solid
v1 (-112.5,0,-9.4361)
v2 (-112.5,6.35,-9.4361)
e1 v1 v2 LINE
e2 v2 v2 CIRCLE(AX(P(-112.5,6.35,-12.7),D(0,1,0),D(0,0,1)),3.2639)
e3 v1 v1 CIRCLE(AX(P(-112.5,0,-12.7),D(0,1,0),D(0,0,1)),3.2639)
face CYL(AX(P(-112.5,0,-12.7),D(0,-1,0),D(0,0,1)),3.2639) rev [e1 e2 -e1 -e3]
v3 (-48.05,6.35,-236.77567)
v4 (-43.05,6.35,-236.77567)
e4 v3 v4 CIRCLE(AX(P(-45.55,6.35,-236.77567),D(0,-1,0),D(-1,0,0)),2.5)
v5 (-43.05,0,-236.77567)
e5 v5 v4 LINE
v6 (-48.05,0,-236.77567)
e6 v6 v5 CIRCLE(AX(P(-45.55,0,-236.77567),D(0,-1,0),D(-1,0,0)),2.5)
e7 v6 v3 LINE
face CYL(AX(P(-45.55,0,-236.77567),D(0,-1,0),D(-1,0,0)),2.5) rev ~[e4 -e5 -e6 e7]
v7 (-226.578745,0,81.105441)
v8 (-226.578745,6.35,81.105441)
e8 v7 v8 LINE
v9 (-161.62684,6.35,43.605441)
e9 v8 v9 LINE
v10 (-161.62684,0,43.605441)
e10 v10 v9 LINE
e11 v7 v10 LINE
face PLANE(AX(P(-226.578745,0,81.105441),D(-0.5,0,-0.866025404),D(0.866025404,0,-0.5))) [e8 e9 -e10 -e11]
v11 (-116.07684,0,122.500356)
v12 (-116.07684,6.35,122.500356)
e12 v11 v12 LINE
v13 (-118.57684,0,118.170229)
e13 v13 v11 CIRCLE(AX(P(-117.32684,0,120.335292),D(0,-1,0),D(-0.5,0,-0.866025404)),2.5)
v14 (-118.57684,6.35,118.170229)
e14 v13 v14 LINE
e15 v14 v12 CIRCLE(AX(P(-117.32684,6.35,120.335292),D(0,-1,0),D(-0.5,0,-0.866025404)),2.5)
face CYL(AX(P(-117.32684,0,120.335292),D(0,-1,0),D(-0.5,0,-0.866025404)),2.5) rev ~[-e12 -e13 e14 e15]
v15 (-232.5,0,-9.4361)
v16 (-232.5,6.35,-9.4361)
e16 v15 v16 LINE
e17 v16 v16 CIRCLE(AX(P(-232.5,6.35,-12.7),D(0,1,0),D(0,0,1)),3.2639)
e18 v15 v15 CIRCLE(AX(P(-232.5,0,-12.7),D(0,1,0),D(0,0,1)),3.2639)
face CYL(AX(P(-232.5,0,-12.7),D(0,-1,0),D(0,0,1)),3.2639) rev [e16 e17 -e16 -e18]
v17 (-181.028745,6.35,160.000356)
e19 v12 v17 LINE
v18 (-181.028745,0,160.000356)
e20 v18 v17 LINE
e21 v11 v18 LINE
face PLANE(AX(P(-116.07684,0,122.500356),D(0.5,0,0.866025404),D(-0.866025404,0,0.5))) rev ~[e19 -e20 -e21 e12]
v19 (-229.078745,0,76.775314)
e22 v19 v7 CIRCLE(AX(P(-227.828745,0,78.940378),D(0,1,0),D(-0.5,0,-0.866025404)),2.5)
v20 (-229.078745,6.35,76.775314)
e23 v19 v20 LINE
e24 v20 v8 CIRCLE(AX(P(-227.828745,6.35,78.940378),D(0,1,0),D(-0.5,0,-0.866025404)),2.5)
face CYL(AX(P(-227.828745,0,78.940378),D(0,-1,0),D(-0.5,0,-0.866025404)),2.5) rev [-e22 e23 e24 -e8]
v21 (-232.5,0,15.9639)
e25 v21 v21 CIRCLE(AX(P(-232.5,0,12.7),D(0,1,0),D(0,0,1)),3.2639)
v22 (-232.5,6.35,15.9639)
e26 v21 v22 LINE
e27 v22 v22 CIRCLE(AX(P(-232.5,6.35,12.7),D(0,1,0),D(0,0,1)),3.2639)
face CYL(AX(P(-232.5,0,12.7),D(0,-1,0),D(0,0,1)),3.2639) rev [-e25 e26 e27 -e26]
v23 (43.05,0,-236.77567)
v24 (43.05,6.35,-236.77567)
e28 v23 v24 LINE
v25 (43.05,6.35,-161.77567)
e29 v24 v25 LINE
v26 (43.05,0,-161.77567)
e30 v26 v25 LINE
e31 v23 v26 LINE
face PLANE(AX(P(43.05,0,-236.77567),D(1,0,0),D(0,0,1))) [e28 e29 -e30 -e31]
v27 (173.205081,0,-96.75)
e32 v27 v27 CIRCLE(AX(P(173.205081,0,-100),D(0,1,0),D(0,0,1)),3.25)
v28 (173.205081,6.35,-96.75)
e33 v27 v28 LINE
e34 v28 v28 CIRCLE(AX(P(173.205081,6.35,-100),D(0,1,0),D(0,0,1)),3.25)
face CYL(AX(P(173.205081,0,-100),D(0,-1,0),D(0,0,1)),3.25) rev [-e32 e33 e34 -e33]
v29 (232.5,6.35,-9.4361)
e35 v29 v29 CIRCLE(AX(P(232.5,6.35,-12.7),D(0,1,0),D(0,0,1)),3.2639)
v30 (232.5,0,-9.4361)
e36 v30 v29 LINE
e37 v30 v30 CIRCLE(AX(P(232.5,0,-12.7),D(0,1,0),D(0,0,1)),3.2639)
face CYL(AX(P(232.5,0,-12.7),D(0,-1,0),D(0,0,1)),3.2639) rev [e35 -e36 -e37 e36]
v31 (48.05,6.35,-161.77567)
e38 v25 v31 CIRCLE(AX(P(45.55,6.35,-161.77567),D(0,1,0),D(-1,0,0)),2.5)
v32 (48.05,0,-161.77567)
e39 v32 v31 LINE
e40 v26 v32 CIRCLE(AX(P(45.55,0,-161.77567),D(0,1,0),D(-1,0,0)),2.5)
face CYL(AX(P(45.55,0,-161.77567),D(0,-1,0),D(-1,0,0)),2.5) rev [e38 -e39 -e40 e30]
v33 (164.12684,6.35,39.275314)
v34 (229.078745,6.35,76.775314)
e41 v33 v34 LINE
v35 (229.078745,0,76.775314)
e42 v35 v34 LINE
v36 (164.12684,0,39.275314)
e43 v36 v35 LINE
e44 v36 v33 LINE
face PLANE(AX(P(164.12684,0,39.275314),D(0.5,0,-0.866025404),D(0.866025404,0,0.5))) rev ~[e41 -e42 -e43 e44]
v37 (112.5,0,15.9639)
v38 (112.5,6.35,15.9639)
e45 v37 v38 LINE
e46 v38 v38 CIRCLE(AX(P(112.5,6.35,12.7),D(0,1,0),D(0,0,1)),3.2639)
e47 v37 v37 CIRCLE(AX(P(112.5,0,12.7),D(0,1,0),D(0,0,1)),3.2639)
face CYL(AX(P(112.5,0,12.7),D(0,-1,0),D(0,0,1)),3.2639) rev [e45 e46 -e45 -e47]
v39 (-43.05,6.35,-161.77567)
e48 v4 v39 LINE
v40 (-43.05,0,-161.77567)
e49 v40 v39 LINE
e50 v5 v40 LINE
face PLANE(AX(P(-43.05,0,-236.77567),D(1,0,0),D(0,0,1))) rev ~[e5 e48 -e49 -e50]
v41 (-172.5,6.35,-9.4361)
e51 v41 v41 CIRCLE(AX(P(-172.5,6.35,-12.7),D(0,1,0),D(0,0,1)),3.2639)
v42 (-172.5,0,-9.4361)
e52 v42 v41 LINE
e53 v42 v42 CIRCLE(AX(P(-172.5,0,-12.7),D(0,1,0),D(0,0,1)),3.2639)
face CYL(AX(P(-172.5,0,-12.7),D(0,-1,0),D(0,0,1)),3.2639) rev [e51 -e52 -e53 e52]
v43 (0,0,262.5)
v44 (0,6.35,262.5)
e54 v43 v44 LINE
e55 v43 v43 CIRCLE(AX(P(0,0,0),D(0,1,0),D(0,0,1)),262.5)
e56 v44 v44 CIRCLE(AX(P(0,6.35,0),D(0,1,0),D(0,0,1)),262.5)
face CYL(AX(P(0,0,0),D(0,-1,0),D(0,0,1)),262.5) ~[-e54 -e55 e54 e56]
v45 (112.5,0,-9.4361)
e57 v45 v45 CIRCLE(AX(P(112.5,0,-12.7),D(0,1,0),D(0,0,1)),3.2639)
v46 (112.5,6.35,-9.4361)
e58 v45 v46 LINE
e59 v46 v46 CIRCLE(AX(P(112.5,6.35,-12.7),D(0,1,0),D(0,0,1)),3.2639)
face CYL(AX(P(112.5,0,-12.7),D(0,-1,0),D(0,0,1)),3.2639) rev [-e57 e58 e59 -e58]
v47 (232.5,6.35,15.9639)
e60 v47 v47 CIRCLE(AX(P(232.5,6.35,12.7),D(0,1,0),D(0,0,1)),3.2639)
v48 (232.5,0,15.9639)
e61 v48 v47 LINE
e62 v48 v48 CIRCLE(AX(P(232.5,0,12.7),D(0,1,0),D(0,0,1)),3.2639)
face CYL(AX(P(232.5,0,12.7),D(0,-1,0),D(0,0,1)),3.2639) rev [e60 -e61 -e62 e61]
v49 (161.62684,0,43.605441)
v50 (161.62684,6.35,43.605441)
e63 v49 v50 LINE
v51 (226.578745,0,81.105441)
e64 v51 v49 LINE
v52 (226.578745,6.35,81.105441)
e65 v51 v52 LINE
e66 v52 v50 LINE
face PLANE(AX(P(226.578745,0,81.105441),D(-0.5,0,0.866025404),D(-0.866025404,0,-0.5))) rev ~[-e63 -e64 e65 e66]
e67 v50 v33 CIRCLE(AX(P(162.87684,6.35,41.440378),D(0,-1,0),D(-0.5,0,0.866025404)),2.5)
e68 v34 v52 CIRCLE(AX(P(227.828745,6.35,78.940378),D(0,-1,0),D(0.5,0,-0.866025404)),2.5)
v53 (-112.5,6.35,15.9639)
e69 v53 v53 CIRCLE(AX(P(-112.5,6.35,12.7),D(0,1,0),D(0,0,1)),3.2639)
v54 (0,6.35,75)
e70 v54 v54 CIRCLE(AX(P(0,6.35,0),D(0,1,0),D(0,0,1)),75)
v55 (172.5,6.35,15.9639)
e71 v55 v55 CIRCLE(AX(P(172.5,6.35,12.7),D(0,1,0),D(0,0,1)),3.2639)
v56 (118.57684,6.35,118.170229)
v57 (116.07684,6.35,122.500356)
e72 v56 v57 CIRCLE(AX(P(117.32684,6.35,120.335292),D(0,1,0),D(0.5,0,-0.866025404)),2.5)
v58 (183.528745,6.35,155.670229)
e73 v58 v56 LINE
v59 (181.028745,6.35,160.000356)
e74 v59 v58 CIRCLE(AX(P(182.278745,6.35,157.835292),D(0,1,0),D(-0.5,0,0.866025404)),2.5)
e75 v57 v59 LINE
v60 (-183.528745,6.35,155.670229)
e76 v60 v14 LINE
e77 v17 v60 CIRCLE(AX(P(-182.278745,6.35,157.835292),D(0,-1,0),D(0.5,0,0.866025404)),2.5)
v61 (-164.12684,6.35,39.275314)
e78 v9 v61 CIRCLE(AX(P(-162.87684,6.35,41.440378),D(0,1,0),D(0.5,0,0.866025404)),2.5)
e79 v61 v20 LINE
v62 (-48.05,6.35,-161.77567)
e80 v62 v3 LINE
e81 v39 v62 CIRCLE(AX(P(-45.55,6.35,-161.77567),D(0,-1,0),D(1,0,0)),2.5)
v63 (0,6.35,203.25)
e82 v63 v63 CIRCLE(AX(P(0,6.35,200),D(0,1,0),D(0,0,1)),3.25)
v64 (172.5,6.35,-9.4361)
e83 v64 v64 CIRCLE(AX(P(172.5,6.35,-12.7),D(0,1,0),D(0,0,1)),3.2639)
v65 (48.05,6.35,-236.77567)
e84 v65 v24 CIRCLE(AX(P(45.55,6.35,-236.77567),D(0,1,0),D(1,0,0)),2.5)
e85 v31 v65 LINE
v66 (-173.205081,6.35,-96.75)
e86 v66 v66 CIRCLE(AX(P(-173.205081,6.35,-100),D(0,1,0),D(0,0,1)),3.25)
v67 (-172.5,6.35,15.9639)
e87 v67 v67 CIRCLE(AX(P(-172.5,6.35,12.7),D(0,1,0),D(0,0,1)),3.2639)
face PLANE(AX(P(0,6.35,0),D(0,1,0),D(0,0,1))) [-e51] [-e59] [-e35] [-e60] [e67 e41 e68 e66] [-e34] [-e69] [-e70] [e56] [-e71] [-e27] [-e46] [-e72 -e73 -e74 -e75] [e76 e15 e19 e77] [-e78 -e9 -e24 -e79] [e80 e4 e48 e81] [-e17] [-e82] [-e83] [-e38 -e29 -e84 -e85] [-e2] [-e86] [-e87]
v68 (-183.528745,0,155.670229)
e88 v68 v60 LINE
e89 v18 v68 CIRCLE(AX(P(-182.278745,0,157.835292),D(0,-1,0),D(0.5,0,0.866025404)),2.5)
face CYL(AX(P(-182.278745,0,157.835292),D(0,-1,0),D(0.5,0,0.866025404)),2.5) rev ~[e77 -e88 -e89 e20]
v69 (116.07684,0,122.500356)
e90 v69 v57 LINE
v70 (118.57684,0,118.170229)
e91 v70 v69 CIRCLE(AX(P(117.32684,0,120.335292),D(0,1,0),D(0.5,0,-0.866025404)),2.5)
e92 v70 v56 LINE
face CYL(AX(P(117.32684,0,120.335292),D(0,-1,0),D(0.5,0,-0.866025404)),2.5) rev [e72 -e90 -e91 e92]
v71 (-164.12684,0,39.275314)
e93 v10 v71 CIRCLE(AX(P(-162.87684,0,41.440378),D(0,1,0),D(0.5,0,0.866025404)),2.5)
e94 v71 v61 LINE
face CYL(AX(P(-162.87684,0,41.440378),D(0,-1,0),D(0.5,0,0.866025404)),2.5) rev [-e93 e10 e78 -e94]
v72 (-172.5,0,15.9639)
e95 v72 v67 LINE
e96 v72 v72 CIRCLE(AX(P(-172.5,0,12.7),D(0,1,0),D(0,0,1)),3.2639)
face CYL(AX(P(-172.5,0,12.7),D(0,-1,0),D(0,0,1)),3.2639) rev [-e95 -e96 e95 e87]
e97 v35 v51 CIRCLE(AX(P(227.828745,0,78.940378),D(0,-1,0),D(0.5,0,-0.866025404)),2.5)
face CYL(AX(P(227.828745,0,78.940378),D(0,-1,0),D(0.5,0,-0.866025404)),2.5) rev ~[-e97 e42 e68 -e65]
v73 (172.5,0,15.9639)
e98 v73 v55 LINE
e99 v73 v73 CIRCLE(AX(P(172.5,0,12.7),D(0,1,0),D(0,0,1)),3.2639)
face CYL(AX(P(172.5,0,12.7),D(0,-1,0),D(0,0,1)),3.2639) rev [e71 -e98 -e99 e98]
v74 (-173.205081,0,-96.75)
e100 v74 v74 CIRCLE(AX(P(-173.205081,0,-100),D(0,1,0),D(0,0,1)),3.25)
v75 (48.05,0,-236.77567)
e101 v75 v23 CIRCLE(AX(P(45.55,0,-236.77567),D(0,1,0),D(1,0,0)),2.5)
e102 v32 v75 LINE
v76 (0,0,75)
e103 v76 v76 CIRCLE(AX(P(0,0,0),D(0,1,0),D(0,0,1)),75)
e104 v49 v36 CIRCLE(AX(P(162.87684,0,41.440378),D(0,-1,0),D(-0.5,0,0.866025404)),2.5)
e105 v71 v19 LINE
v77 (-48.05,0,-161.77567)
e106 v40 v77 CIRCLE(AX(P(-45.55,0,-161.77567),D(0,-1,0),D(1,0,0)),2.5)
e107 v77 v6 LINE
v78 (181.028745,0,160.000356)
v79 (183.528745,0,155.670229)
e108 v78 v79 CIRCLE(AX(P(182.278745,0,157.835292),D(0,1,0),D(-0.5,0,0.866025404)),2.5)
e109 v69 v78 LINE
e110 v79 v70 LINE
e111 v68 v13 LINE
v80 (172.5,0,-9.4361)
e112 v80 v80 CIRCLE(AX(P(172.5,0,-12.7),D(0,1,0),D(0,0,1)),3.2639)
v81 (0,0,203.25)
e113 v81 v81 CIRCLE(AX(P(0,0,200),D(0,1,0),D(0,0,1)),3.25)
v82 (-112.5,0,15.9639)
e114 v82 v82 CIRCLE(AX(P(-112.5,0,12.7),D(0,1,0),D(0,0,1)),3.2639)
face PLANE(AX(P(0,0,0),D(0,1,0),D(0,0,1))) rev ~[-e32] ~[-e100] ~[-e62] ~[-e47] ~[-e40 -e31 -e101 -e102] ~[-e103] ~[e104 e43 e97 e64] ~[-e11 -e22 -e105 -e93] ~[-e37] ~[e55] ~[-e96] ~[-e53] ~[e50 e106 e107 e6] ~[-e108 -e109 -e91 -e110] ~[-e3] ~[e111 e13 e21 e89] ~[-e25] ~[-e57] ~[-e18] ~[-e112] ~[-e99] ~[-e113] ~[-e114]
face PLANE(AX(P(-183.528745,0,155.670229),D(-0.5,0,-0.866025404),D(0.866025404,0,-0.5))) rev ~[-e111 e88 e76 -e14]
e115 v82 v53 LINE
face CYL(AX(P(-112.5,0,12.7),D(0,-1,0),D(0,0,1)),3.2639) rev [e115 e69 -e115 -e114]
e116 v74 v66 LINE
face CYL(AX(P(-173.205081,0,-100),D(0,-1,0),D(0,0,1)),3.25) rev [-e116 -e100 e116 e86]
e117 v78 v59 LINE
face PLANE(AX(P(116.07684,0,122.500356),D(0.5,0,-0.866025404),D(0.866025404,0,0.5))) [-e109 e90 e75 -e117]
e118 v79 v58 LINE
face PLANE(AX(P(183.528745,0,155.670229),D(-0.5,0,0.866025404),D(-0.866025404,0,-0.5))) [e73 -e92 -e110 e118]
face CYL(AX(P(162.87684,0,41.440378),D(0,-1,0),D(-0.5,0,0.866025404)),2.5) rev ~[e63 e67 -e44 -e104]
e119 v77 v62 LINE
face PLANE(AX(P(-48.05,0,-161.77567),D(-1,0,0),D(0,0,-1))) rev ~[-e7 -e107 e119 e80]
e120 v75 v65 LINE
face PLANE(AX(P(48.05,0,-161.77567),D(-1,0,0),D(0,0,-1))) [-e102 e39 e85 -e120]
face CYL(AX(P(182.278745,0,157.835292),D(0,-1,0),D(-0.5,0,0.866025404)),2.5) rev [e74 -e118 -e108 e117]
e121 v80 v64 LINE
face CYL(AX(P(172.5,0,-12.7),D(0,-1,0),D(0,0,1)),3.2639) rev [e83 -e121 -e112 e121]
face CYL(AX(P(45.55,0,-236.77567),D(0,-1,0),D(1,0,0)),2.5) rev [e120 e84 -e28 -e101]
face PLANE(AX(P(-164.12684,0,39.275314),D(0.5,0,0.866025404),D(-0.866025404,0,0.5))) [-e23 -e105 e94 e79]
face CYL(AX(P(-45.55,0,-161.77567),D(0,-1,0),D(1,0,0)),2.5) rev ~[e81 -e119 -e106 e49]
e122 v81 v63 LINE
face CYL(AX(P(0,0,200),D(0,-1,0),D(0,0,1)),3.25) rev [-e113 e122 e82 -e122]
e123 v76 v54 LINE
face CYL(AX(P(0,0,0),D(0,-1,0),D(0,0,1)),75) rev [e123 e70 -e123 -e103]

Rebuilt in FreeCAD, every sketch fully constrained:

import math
import FreeCAD as App
import Part
import Sketcher

V = App.Vector
Q = App.Units.Quantity

doc = App.newDocument("Part")
body = doc.addObject("PartDesign::Body", "Body")

# Sketch on XZ plane
sketch1 = body.newObject("Sketcher::SketchObject", "Sketch")
sketch1.AttachmentSupport = (doc.getObject("XZ_Plane"), [""])
sketch1.MapMode = "FlatFace"
sketch1.addGeometry([
    Part.Circle(V(0, 0, 0), V(0, 0, 1), 262.5),  # 0
    Part.Circle(V(-173.2, -100, 0), V(0, 0, 1), 3.2),  # 1
    Part.ArcOfCircle(Part.Circle(V(-45.5, -236.8, 0), V(0, 0, 1), 2.5), math.radians(180), math.radians(360)),  # 2
    Part.LineSegment(V(-43, -236.8, 0), V(-43, -161.8, 0)),  # 3
    Part.ArcOfCircle(Part.Circle(V(-45.5, -161.8, 0), V(0, 0, 1), 2.5), math.radians(0), math.radians(180)),  # 4
    Part.LineSegment(V(-48, -161.8, 0), V(-48, -236.8, 0)),  # 5
    Part.Circle(V(-232.5, -12.7, 0), V(0, 0, 1), 3.3),  # 6
    Part.Circle(V(-232.5, 12.7, 0), V(0, 0, 1), 3.3),  # 7
    Part.LineSegment(V(-161.6, 43.6, 0), V(-226.6, 81.1, 0)),  # 8
    Part.ArcOfCircle(Part.Circle(V(-227.8, 78.9, 0), V(0, 0, 1), 2.5), math.radians(60), math.radians(240)),  # 9
    Part.LineSegment(V(-229.1, 76.8, 0), V(-164.1, 39.3, 0)),  # 10
    Part.ArcOfCircle(Part.Circle(V(-162.9, 41.4, 0), V(0, 0, 1), 2.5), math.radians(-120), math.radians(60)),  # 11
    Part.Circle(V(-172.5, -12.7, 0), V(0, 0, 1), 3.3),  # 12
    Part.Circle(V(-172.5, 12.7, 0), V(0, 0, 1), 3.3),  # 13
    Part.ArcOfCircle(Part.Circle(V(-182.3, 157.8, 0), V(0, 0, 1), 2.5), math.radians(60), math.radians(240)),  # 14
    Part.LineSegment(V(-183.5, 155.7, 0), V(-118.6, 118.2, 0)),  # 15
    Part.ArcOfCircle(Part.Circle(V(-117.3, 120.3, 0), V(0, 0, 1), 2.5), math.radians(-120), math.radians(60)),  # 16
    Part.LineSegment(V(-116.1, 122.5, 0), V(-181, 160, 0)),  # 17
    Part.Circle(V(-112.5, -12.7, 0), V(0, 0, 1), 3.3),  # 18
    Part.Circle(V(-112.5, 12.7, 0), V(0, 0, 1), 3.3),  # 19
    Part.LineSegment(V(43, -161.8, 0), V(43, -236.8, 0)),  # 20
    Part.ArcOfCircle(Part.Circle(V(45.5, -236.8, 0), V(0, 0, 1), 2.5), math.radians(180), math.radians(360)),  # 21
    Part.LineSegment(V(48, -236.8, 0), V(48, -161.8, 0)),  # 22
    Part.ArcOfCircle(Part.Circle(V(45.5, -161.8, 0), V(0, 0, 1), 2.5), math.radians(0), math.radians(180)),  # 23
    Part.Circle(V(173.2, -100, 0), V(0, 0, 1), 3.2),  # 24
    Part.Circle(V(0, 0, 0), V(0, 0, 1), 75),  # 25
    Part.Circle(V(112.5, -12.7, 0), V(0, 0, 1), 3.3),  # 26
    Part.Circle(V(112.5, 12.7, 0), V(0, 0, 1), 3.3),  # 27
    Part.Circle(V(0, 200, 0), V(0, 0, 1), 3.2),  # 28
    Part.Circle(V(172.5, -12.7, 0), V(0, 0, 1), 3.3),  # 29
    Part.Circle(V(172.5, 12.7, 0), V(0, 0, 1), 3.3),  # 30
    Part.Circle(V(232.5, -12.7, 0), V(0, 0, 1), 3.3),  # 31
    Part.Circle(V(232.5, 12.7, 0), V(0, 0, 1), 3.3),  # 32
    Part.ArcOfCircle(Part.Circle(V(227.8, 78.9, 0), V(0, 0, 1), 2.5), math.radians(-60), math.radians(120)),  # 33
    Part.LineSegment(V(226.6, 81.1, 0), V(161.6, 43.6, 0)),  # 34
    Part.ArcOfCircle(Part.Circle(V(162.9, 41.4, 0), V(0, 0, 1), 2.5), math.radians(120), math.radians(300)),  # 35
    Part.LineSegment(V(164.1, 39.3, 0), V(229.1, 76.8, 0)),  # 36
    Part.LineSegment(V(118.6, 118.2, 0), V(183.5, 155.7, 0)),  # 37
    Part.ArcOfCircle(Part.Circle(V(182.3, 157.8, 0), V(0, 0, 1), 2.5), math.radians(-60), math.radians(120)),  # 38
    Part.LineSegment(V(181, 160, 0), V(116.1, 122.5, 0)),  # 39
    Part.ArcOfCircle(Part.Circle(V(117.3, 120.3, 0), V(0, 0, 1), 2.5), math.radians(120), math.radians(300)),  # 40
], False)
sketch1.addConstraint([
    Sketcher.Constraint("Tangent", 2, 2, 3, 1),
    Sketcher.Constraint("Tangent", 3, 2, 4, 1),
    Sketcher.Constraint("Tangent", 4, 2, 5, 1),
    Sketcher.Constraint("Tangent", 5, 2, 2, 1),
    Sketcher.Constraint("Tangent", 8, 2, 9, 1),
    Sketcher.Constraint("Tangent", 9, 2, 10, 1),
    Sketcher.Constraint("Tangent", 10, 2, 11, 1),
    Sketcher.Constraint("Tangent", 11, 2, 8, 1),
    Sketcher.Constraint("Tangent", 14, 2, 15, 1),
    Sketcher.Constraint("Tangent", 15, 2, 16, 1),
    Sketcher.Constraint("Tangent", 16, 2, 17, 1),
    Sketcher.Constraint("Tangent", 17, 2, 14, 1),
    Sketcher.Constraint("Tangent", 20, 2, 21, 1),
    Sketcher.Constraint("Tangent", 21, 2, 22, 1),
    Sketcher.Constraint("Tangent", 22, 2, 23, 1),
    Sketcher.Constraint("Tangent", 23, 2, 20, 1),
    Sketcher.Constraint("Tangent", 33, 2, 34, 1),
    Sketcher.Constraint("Tangent", 34, 2, 35, 1),
    Sketcher.Constraint("Tangent", 35, 2, 36, 1),
    Sketcher.Constraint("Tangent", 36, 2, 33, 1),
    Sketcher.Constraint("Tangent", 37, 2, 38, 1),
    Sketcher.Constraint("Tangent", 38, 2, 39, 1),
    Sketcher.Constraint("Tangent", 39, 2, 40, 1),
    Sketcher.Constraint("Tangent", 40, 2, 37, 1),
    Sketcher.Constraint("Vertical", 3),
    Sketcher.Constraint("Vertical", 5),
    Sketcher.Constraint("Vertical", 20),
    Sketcher.Constraint("Vertical", 22),
    Sketcher.Constraint("Coincident", 0, 3, -1, 1),
    Sketcher.Constraint("Coincident", 25, 3, -1, 1),
    Sketcher.Constraint("Equal", 6, 7),
    Sketcher.Constraint("Equal", 4, 9),
    Sketcher.Constraint("Equal", 9, 11),
    Sketcher.Constraint("Equal", 7, 12),
    Sketcher.Constraint("Equal", 12, 13),
    Sketcher.Constraint("Equal", 11, 14),
    Sketcher.Constraint("Equal", 14, 16),
    Sketcher.Constraint("Equal", 13, 18),
    Sketcher.Constraint("Equal", 18, 19),
    Sketcher.Constraint("Equal", 16, 21),
    Sketcher.Constraint("Equal", 1, 24),
    Sketcher.Constraint("Equal", 19, 26),
    Sketcher.Constraint("Equal", 26, 27),
    Sketcher.Constraint("Equal", 24, 28),
    Sketcher.Constraint("Equal", 27, 29),
    Sketcher.Constraint("Equal", 29, 30),
    Sketcher.Constraint("Equal", 30, 31),
    Sketcher.Constraint("Equal", 31, 32),
    Sketcher.Constraint("Equal", 23, 33),
    Sketcher.Constraint("Equal", 33, 35),
    Sketcher.Constraint("Equal", 35, 38),
    Sketcher.Constraint("Equal", 38, 40),
    Sketcher.Constraint("Symmetric", 19, 3, 26, 3, -1, 1),
    Sketcher.Constraint("Symmetric", 18, 3, 27, 3, -1, 1),
    Sketcher.Constraint("Symmetric", 13, 3, 29, 3, -1, 1),
    Sketcher.Constraint("Symmetric", 12, 3, 30, 3, -1, 1),
    Sketcher.Constraint("Symmetric", 7, 3, 31, 3, -1, 1),
    Sketcher.Constraint("Symmetric", 6, 3, 32, 3, -1, 1),
    Sketcher.Constraint("Symmetric", 2, 3, 21, 3, -2),
    Sketcher.Constraint("Symmetric", 1, 3, 24, 3, -2),
    Sketcher.Constraint("Symmetric", 18, 3, 26, 3, -2),
    Sketcher.Constraint("Symmetric", 12, 3, 29, 3, -2),
    Sketcher.Constraint("Symmetric", 6, 3, 31, 3, -2),
    Sketcher.Constraint("Symmetric", 9, 3, 33, 3, -2),
    Sketcher.Constraint("Symmetric", 11, 3, 35, 3, -2),
    Sketcher.Constraint("Symmetric", 14, 3, 38, 3, -2),
    Sketcher.Constraint("Symmetric", 16, 3, 40, 3, -2),
    Sketcher.Constraint("PointOnObject", 28, 3, -2),
    Sketcher.Constraint("Parallel", 10, 15),
    Sketcher.Constraint("Horizontal", 6, 3, 12, 3),
    Sketcher.Constraint("Horizontal", 12, 3, 18, 3),
    Sketcher.Constraint("Horizontal", 4, 3, 23, 3),
    Sketcher.Constraint("Equal", 10, 15),
    Sketcher.Constraint("Diameter", 0, 525.0),
    Sketcher.Constraint("Diameter", 25, 150.0),
    Sketcher.Constraint("Diameter", 1, 6.5),
    Sketcher.Constraint("Radius", 2, 2.5),
    Sketcher.Constraint("DistanceY", 3, 1, 3, 2, 75.0),
    Sketcher.Constraint("Angle", 8, Q("150 deg")),
    Sketcher.Constraint("Distance", 8, 75.0),
    Sketcher.Constraint("DistanceY", 1, 3, -1, 1, 100.0),
    Sketcher.Constraint("DistanceY", -1, 1, 28, 3, 200.0),
    Sketcher.Constraint("DistanceX", 6, 3, 12, 3, 60.0),
    Sketcher.Constraint("DistanceX", 12, 3, 18, 3, 60.0),
    Sketcher.Constraint("Diameter", 6, 6.5278),
    Sketcher.Constraint("DistanceX", 6, 3, -1, 1, 232.5),
    Sketcher.Constraint("DistanceY", 6, 3, -1, 1, 12.7),
    Sketcher.Constraint("DistanceX", 2, 3, 21, 3, 91.1),
    Sketcher.Constraint("DistanceX", 8, 2, 14, 3, 44.3),
    Sketcher.Constraint("DistanceX", 1, 3, -1, 1, 173.205081),
    Sketcher.Constraint("DistanceY", 2, 3, -1, 1, 236.77567),
    Sketcher.Constraint("DistanceX", 11, 3, -1, 1, 162.87684),
    Sketcher.Constraint("DistanceY", -1, 1, 8, 2, 81.105441),
    Sketcher.Constraint("DistanceY", -1, 1, 14, 2, 155.670229),
])
pad1 = body.newObject("PartDesign::Pad", "Pad")
pad1.Profile = sketch1
pad1.Length = 6.35
pad1.Reversed = True

doc.recompute()
